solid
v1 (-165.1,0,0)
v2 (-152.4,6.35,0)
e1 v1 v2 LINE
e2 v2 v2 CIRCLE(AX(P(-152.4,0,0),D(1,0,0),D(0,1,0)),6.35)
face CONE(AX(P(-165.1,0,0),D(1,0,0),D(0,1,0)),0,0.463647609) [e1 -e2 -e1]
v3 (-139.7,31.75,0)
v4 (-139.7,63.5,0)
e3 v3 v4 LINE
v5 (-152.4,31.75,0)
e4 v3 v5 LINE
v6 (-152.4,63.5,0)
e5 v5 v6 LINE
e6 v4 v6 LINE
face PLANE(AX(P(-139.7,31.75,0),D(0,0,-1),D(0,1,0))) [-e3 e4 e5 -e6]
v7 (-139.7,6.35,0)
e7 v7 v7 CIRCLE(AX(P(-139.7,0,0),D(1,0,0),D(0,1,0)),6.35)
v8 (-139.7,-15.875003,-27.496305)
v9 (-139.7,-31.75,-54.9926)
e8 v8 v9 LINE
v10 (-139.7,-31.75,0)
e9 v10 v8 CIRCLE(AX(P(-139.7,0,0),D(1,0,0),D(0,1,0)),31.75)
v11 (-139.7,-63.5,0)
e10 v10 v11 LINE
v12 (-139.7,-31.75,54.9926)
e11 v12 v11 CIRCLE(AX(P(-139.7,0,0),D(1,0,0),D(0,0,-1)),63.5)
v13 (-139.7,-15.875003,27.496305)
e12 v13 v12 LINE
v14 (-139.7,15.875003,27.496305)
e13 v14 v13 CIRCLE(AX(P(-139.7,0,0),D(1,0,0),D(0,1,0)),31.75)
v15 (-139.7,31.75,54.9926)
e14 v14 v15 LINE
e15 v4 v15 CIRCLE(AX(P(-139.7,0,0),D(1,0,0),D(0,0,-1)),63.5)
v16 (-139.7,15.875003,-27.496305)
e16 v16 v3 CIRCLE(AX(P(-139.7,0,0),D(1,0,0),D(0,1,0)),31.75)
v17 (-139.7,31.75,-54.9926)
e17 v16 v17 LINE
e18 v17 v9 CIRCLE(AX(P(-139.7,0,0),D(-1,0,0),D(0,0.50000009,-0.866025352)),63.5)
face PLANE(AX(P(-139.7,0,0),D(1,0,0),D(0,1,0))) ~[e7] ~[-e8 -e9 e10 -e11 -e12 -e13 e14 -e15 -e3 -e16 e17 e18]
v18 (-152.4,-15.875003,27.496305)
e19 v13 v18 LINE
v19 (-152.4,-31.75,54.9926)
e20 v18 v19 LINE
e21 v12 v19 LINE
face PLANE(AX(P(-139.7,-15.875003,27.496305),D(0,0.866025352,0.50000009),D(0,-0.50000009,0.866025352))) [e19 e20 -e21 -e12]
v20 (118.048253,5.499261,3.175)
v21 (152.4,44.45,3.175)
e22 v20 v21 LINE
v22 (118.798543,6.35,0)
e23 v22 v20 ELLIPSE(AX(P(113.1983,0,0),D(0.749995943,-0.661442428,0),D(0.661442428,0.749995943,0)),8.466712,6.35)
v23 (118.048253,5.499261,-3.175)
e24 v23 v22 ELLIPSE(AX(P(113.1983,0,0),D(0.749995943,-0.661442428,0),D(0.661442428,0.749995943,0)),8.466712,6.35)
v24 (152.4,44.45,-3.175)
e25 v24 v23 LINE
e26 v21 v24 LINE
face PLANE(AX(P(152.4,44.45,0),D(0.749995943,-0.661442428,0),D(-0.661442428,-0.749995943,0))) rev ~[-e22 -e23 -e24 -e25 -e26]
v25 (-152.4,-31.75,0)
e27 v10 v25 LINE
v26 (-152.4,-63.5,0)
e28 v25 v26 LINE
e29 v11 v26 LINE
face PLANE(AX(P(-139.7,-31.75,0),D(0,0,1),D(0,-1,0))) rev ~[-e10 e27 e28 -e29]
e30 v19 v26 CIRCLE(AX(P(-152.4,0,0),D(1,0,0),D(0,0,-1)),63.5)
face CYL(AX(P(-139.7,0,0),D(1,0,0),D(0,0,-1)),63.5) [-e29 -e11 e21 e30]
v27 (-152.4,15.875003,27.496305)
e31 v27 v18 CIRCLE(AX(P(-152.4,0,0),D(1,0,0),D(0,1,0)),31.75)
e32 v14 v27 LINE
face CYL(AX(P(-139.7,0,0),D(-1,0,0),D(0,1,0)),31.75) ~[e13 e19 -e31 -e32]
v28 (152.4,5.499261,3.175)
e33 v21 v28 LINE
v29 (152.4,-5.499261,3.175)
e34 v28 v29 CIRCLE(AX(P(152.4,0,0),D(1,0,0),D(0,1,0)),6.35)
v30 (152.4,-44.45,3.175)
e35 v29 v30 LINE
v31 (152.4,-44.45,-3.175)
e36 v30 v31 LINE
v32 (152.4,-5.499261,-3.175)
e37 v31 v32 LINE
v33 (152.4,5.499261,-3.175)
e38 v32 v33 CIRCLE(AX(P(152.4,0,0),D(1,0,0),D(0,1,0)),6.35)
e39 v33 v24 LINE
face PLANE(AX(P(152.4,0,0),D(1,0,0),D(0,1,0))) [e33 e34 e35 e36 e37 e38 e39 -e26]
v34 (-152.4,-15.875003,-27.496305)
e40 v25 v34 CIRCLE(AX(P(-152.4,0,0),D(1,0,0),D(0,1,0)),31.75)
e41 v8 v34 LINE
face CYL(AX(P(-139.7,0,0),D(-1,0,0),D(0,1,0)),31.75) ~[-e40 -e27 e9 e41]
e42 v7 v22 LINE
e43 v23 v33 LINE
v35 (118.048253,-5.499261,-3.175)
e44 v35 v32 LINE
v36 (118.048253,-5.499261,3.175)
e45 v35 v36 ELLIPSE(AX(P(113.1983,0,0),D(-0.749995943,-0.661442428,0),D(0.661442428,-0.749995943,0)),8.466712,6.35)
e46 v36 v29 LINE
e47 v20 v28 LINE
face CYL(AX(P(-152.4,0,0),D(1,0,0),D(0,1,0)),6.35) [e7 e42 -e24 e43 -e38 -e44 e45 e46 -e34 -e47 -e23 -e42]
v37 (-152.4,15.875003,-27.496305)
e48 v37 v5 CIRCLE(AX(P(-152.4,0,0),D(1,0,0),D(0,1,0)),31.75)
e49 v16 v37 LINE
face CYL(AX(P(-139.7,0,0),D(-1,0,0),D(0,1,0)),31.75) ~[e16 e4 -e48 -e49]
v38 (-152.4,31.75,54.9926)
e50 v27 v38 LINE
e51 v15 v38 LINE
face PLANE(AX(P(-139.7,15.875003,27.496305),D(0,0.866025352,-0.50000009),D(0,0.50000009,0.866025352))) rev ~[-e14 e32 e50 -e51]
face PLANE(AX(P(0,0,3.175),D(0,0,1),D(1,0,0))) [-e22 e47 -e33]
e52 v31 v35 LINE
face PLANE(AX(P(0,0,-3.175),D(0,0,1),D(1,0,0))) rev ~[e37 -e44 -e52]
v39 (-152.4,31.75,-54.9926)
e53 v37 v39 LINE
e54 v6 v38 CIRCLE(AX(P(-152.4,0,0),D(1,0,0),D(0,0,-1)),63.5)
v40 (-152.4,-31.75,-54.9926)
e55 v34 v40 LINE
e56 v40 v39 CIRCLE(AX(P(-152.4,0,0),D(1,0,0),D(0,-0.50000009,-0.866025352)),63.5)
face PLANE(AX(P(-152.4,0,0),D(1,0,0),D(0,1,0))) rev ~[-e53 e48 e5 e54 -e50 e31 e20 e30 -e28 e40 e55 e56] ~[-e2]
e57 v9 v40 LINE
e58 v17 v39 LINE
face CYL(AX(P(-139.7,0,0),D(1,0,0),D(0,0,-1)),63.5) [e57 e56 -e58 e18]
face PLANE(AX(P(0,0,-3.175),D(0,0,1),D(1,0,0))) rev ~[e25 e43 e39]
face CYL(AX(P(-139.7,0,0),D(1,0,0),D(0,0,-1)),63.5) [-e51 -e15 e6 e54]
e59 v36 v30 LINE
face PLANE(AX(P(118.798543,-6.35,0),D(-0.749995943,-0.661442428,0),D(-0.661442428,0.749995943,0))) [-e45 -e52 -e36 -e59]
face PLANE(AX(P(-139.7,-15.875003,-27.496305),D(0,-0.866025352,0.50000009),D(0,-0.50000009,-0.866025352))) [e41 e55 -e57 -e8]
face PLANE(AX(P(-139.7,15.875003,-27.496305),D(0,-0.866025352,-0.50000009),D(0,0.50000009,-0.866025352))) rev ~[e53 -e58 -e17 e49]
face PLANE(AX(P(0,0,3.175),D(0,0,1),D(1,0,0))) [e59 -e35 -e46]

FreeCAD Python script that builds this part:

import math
import FreeCAD as App
import Part
import Sketcher
Q = App.Units.Quantity


def add_polygon(sketch, points):
    """Adds a closed chain of lines whose ends are joined by coincident constraints."""
    first, n = sketch.GeometryCount, len(points)
    for a, b in zip(points, points[1:] + points[:1]):
        sketch.addGeometry(Part.LineSegment(App.Vector(*a, 0), App.Vector(*b, 0)), False)
    for i in range(n):
        sketch.addConstraint(Sketcher.Constraint("Coincident", first + i, 2, first + (i + 1) % n, 1))

doc = App.newDocument("Part")
body = doc.addObject("PartDesign::Body", "Body")

# Sketch on XY plane
sketch1 = doc.addObject("Sketcher::SketchObject", "Sketch")
body.addObject(sketch1)
sketch1.AttachmentSupport = (doc.XY_Plane, [""])
sketch1.MapMode = "FlatFace"
add_polygon(sketch1, [(-152, 32), (-152, 6), (-165, 0), (152, 0), (152, 6), (-140, 6), (-140, 32)])  # lines 0-6
sketch1.addConstraint(Sketcher.Constraint("Vertical", 0))
sketch1.addConstraint(Sketcher.Constraint("Horizontal", 2))
sketch1.addConstraint(Sketcher.Constraint("Vertical", 3))
sketch1.addConstraint(Sketcher.Constraint("Horizontal", 4))
sketch1.addConstraint(Sketcher.Constraint("Vertical", 5))
sketch1.addConstraint(Sketcher.Constraint("Horizontal", 6))
sketch1.addConstraint(Sketcher.Constraint("Symmetric", 0, 2, 3, 2, -2))
sketch1.addConstraint(Sketcher.Constraint("PointOnObject", 1, 2, -1))
sketch1.addConstraint(Sketcher.Constraint("DistanceX", 6, 2, 6, 1, Q("0.5 in")))
sketch1.addConstraint(Sketcher.Constraint("DistanceX", 0, 2, 2, 2, Q("12 in")))
sketch1.addConstraint(Sketcher.Constraint("DistanceY", 3, 1, 3, 2, Q("0.25 in")))
sketch1.addConstraint(Sketcher.Constraint("DistanceX", 1, 2, 0, 2, Q("0.5 in")))
sketch1.addConstraint(Sketcher.Constraint("DistanceY", 0, 2, 0, 1, Q("1 in")))
revolution = doc.addObject("PartDesign::Revolution", "Revolution")
body.addObject(revolution)
revolution.Profile = sketch1
revolution.ReferenceAxis = (sketch1, ["H_Axis"])
revolution.Angle = 360

# Sketch on XY plane
sketch2 = doc.addObject("Sketcher::SketchObject", "Sketch001")
body.addObject(sketch2)
sketch2.AttachmentSupport = (doc.XY_Plane, [""])
sketch2.MapMode = "FlatFace"
add_polygon(sketch2, [(152, 44), (113, 0), (152, -44)])  # lines 0-2
sketch2.addConstraint(Sketcher.Constraint("Vertical", 2))
sketch2.addConstraint(Sketcher.Constraint("PointOnObject", 0, 2, -1))
sketch2.addConstraint(Sketcher.Constraint("Equal", 0, 1))
sketch2.addConstraint(Sketcher.Constraint("DistanceY", 1, 2, -1, 1, Q("1.75 in")))
sketch2.addConstraint(Sketcher.Constraint("DistanceX", -1, 1, 1, 2, Q("6 in")))
sketch2.addConstraint(Sketcher.Constraint("Angle", 0, Q("-131.41 deg")))
pad1 = doc.addObject("PartDesign::Pad", "Pad")
body.addObject(pad1)
pad1.Profile = sketch2
pad1.Length = Q("0.25 in")
pad1.Midplane = True

# Sketch on YZ plane
sketch3 = doc.addObject("Sketcher::SketchObject", "Sketch002")
body.addObject(sketch3)
sketch3.AttachmentSupport = (doc.YZ_Plane, [""])
sketch3.MapMode = "FlatFace"
sketch3.AttachmentOffset = App.Placement(App.Vector(0, 0, -5.5 * 25.4), App.Rotation())
sketch3.addGeometry(Part.ArcOfCircle(Part.Circle(App.Vector(0, 0, 0), App.Vector(0, 0, 1), 64), math.radians(-120), math.radians(-60)), False)
sketch3.addGeometry(Part.LineSegment(App.Vector(32, -55, 0), App.Vector(16, -27, 0)), False)
sketch3.addGeometry(Part.ArcOfCircle(Part.Circle(App.Vector(0, 0, 0), App.Vector(0, 0, 1), 32), math.radians(-120), math.radians(-60)), False)
sketch3.addGeometry(Part.LineSegment(App.Vector(-16, -27, 0), App.Vector(-32, -55, 0)), False)
sketch3.addGeometry(Part.LineSegment(App.Vector(32, 0, 0), App.Vector(64, 0, 0)), False)
sketch3.addGeometry(Part.ArcOfCircle(Part.Circle(App.Vector(0, 0, 0), App.Vector(0, 0, 1), 64), math.radians(0), math.radians(60)), False)
sketch3.addGeometry(Part.LineSegment(App.Vector(32, 55, 0), App.Vector(16, 27, 0)), False)
sketch3.addGeometry(Part.ArcOfCircle(Part.Circle(App.Vector(0, 0, 0), App.Vector(0, 0, 1), 32), math.radians(0), math.radians(60)), False)
sketch3.addGeometry(Part.ArcOfCircle(Part.Circle(App.Vector(0, 0, 0), App.Vector(0, 0, 1), 64), math.radians(120), math.radians(180)), False)
sketch3.addGeometry(Part.LineSegment(App.Vector(-64, 0, 0), App.Vector(-32, 0, 0)), False)
sketch3.addGeometry(Part.ArcOfCircle(Part.Circle(App.Vector(0, 0, 0), App.Vector(0, 0, 1), 32), math.radians(120), math.radians(180)), False)
sketch3.addGeometry(Part.LineSegment(App.Vector(-16, 27, 0), App.Vector(-32, 55, 0)), False)
sketch3.addConstraint(Sketcher.Constraint("Coincident", 0, 2, 1, 1))
sketch3.addConstraint(Sketcher.Constraint("Coincident", 1, 2, 2, 2))
sketch3.addConstraint(Sketcher.Constraint("Coincident", 2, 1, 3, 1))
sketch3.addConstraint(Sketcher.Constraint("Coincident", 3, 2, 0, 1))
sketch3.addConstraint(Sketcher.Constraint("Coincident", 4, 2, 5, 1))
sketch3.addConstraint(Sketcher.Constraint("Coincident", 5, 2, 6, 1))
sketch3.addConstraint(Sketcher.Constraint("Coincident", 6, 2, 7, 2))
sketch3.addConstraint(Sketcher.Constraint("Coincident", 7, 1, 4, 1))
sketch3.addConstraint(Sketcher.Constraint("Coincident", 8, 2, 9, 1))
sketch3.addConstraint(Sketcher.Constraint("Coincident", 9, 2, 10, 2))
sketch3.addConstraint(Sketcher.Constraint("Coincident", 10, 1, 11, 1))
sketch3.addConstraint(Sketcher.Constraint("Coincident", 11, 2, 8, 1))
sketch3.addConstraint(Sketcher.Constraint("Horizontal", 4))
sketch3.addConstraint(Sketcher.Constraint("Horizontal", 9))
sketch3.addConstraint(Sketcher.Constraint("Coincident", 0, 3, -1, 1))
sketch3.addConstraint(Sketcher.Constraint("Coincident", 2, 3, -1, 1))
sketch3.addConstraint(Sketcher.Constraint("Coincident", 5, 3, -1, 1))
sketch3.addConstraint(Sketcher.Constraint("Coincident", 7, 3, -1, 1))
sketch3.addConstraint(Sketcher.Constraint("Coincident", 8, 3, -1, 1))
sketch3.addConstraint(Sketcher.Constraint("Coincident", 10, 3, -1, 1))
sketch3.addConstraint(Sketcher.Constraint("Equal", 0, 5))
sketch3.addConstraint(Sketcher.Constraint("Equal", 2, 7))
sketch3.addConstraint(Sketcher.Constraint("Equal", 5, 8))
sketch3.addConstraint(Sketcher.Constraint("Equal", 7, 10))
sketch3.addConstraint(Sketcher.Constraint("PointOnObject", 4, 2, -1))
sketch3.addConstraint(Sketcher.Constraint("PointOnObject", 8, 2, -1))
sketch3.addConstraint(Sketcher.Constraint("Parallel", 3, 6))
sketch3.addConstraint(Sketcher.Constraint("Parallel", 1, 11))
sketch3.addConstraint(Sketcher.Constraint("Horizontal", 1, 2, 2, 1))
sketch3.addConstraint(Sketcher.Constraint("Horizontal", 0, 2, 3, 2))
sketch3.addConstraint(Sketcher.Constraint("Horizontal", 6, 2, 10, 1))
sketch3.addConstraint(Sketcher.Constraint("Vertical", 0, 2, 5, 2))
sketch3.addConstraint(Sketcher.Constraint("Vertical", 5, 2, 7, 1))
sketch3.addConstraint(Sketcher.Constraint("Angle", 1, Q("120 deg")))
sketch3.addConstraint(Sketcher.Constraint("Radius", 0, Q("2.5 in")))
sketch3.addConstraint(Sketcher.Constraint("Radius", 2, Q("1.25 in")))
pad2 = doc.addObject("PartDesign::Pad", "Pad001")
body.addObject(pad2)
pad2.Profile = sketch3
pad2.Length = Q("0.5 in")
pad2.Reversed = True

doc.recompute()
